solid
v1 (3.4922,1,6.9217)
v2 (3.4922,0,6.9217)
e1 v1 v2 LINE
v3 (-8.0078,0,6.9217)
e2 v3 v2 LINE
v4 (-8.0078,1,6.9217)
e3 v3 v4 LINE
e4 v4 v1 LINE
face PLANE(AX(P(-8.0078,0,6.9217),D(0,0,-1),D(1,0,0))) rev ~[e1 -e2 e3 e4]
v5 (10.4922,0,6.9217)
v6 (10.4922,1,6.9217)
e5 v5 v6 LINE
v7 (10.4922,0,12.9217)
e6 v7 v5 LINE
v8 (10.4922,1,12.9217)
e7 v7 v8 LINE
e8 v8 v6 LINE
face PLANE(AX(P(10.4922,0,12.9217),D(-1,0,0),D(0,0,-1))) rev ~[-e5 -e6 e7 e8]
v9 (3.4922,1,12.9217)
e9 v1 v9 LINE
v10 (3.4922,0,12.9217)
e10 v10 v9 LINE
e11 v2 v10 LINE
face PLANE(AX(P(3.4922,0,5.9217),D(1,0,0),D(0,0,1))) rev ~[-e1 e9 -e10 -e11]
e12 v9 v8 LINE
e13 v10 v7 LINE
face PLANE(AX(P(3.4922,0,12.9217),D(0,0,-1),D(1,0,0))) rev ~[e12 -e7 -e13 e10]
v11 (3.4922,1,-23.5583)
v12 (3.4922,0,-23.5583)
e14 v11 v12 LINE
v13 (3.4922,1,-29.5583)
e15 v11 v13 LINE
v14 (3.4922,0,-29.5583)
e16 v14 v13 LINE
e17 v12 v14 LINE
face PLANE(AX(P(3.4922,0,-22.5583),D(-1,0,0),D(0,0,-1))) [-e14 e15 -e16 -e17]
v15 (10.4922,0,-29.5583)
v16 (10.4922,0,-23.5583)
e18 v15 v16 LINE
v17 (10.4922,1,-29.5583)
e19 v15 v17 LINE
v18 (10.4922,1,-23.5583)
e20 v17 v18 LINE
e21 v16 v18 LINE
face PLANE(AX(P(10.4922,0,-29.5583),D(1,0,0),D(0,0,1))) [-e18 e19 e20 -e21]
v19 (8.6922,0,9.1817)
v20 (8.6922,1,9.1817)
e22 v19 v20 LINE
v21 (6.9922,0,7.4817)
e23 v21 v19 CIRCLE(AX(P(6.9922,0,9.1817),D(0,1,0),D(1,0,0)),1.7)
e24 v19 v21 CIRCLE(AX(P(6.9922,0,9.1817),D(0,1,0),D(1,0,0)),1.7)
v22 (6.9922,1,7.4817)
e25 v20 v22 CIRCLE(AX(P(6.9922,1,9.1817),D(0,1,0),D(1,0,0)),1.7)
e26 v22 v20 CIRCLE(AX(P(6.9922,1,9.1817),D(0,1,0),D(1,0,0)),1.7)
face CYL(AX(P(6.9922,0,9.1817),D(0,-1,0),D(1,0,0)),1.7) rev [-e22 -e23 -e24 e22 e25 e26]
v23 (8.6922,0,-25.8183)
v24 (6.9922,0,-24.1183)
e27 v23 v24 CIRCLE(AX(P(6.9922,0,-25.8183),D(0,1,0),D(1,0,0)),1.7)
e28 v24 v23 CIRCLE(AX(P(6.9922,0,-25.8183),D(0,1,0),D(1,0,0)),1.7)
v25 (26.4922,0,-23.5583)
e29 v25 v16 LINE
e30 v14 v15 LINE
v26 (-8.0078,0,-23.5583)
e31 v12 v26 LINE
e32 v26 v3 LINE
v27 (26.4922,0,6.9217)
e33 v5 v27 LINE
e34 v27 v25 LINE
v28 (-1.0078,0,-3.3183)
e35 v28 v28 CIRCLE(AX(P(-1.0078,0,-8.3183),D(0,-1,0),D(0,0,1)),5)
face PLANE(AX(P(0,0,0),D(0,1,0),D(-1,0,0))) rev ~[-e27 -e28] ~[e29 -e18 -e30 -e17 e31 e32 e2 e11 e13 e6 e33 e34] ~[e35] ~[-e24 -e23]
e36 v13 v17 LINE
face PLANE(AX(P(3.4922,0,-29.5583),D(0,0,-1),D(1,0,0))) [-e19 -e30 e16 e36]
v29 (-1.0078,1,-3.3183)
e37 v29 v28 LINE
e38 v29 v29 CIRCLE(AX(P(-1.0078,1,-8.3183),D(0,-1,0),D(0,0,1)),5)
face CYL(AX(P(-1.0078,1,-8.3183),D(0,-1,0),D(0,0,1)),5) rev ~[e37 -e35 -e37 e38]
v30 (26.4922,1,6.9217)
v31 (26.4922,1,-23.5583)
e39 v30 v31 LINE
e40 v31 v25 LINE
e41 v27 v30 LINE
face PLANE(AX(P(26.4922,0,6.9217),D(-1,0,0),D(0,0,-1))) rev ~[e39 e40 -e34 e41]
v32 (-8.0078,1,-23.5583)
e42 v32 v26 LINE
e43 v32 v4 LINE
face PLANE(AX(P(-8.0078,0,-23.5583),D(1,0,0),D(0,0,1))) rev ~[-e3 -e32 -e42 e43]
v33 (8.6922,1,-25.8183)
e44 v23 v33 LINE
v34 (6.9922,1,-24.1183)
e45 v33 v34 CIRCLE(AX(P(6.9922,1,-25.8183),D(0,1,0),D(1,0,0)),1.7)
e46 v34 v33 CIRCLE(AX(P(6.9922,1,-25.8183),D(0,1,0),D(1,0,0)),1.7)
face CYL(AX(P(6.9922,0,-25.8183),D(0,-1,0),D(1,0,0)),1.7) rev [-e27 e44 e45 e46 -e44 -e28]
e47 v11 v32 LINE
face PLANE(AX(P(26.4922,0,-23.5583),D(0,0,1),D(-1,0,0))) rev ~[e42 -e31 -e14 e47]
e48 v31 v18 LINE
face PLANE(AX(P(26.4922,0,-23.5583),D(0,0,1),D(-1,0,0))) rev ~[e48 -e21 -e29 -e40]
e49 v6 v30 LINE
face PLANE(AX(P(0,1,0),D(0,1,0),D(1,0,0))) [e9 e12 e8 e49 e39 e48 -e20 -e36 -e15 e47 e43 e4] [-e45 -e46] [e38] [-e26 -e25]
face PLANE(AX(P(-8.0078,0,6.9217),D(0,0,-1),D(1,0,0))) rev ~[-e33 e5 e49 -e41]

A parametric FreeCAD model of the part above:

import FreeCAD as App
import Part
import Sketcher

V = App.Vector
Q = App.Units.Quantity

doc = App.newDocument("Part")
body = doc.addObject("PartDesign::Body", "Body")

# Sketch on XZ plane
sketch1 = doc.addObject("Sketcher::SketchObject", "Sketch")
body.addObject(sketch1)
sketch1.AttachmentSupport = (doc.XZ_Plane, [""])
sketch1.MapMode = "FlatFace"
sketch1.addGeometry(Part.LineSegment(V(-8.0078, -23.5583, 0), V(-8.0078, 6.9217, 0)), False)
sketch1.addGeometry(Part.LineSegment(V(-8.0078, 6.9217, 0), V(26.4922, 6.9217, 0)), False)
sketch1.addGeometry(Part.LineSegment(V(26.4922, 6.9217, 0), V(26.4922, -23.5583, 0)), False)
sketch1.addGeometry(Part.LineSegment(V(26.4922, -23.5583, 0), V(-8.0078, -23.5583, 0)), False)
sketch1.addConstraint(Sketcher.Constraint("Coincident", 0, 2, 1, 1))
sketch1.addConstraint(Sketcher.Constraint("Coincident", 1, 2, 2, 1))
sketch1.addConstraint(Sketcher.Constraint("Coincident", 2, 2, 3, 1))
sketch1.addConstraint(Sketcher.Constraint("Coincident", 3, 2, 0, 1))
sketch1.addConstraint(Sketcher.Constraint("Vertical", 0))
sketch1.addConstraint(Sketcher.Constraint("Horizontal", 1))
sketch1.addConstraint(Sketcher.Constraint("Vertical", 2))
sketch1.addConstraint(Sketcher.Constraint("Horizontal", 3))
sketch1.addConstraint(Sketcher.Constraint("DistanceX", 1, 1, 1, 2, Q("34.5 mm")))
sketch1.addConstraint(Sketcher.Constraint("DistanceY", 0, 1, 0, 2, Q("30.48 mm")))
sketch1.addConstraint(Sketcher.Constraint("DistanceX", 0, 2, -1, 1, Q("8.0078 mm")))
sketch1.addConstraint(Sketcher.Constraint("DistanceY", -1, 1, 0, 2, Q("6.9217 mm")))
pad1 = doc.addObject("PartDesign::Pad", "Pad")
body.addObject(pad1)
pad1.Profile = sketch1
pad1.Length = 1
pad1.Reversed = True

# Sketch on XZ plane
sketch2 = doc.addObject("Sketcher::SketchObject", "Sketch001")
body.addObject(sketch2)
sketch2.AttachmentSupport = (doc.XZ_Plane, [""])
sketch2.MapMode = "FlatFace"
sketch2.AttachmentOffset = App.Placement(V(0, 0, -1), App.Rotation())
sketch2.addGeometry(Part.LineSegment(V(26.4922, -23.5583, 0), V(-8.0078, -23.5583, 0)), False)
sketch2.addGeometry(Part.LineSegment(V(-8.0078, -23.5583, 0), V(-8.0078, 6.9217, 0)), False)
sketch2.addGeometry(Part.LineSegment(V(-8.0078, 6.9217, 0), V(26.4922, 6.9217, 0)), False)
sketch2.addGeometry(Part.LineSegment(V(26.4922, 6.9217, 0), V(26.4922, -23.5583, 0)), False)
sketch2.addGeometry(Part.LineSegment(V(-7.0078, -22.5583, 0), V(25.4922, -22.5583, 0)), False)
sketch2.addGeometry(Part.LineSegment(V(25.4922, -22.5583, 0), V(25.4922, 5.9217, 0)), False)
sketch2.addGeometry(Part.LineSegment(V(25.4922, 5.9217, 0), V(-7.0078, 5.9217, 0)), False)
sketch2.addGeometry(Part.LineSegment(V(-7.0078, 5.9217, 0), V(-7.0078, -22.5583, 0)), False)
sketch2.addConstraint(Sketcher.Constraint("Coincident", 0, 2, 1, 1))
sketch2.addConstraint(Sketcher.Constraint("Coincident", 1, 2, 2, 1))
sketch2.addConstraint(Sketcher.Constraint("Coincident", 2, 2, 3, 1))
sketch2.addConstraint(Sketcher.Constraint("Coincident", 3, 2, 0, 1))
sketch2.addConstraint(Sketcher.Constraint("Coincident", 4, 2, 5, 1))
sketch2.addConstraint(Sketcher.Constraint("Coincident", 5, 2, 6, 1))
sketch2.addConstraint(Sketcher.Constraint("Coincident", 6, 2, 7, 1))
sketch2.addConstraint(Sketcher.Constraint("Coincident", 7, 2, 4, 1))
sketch2.addConstraint(Sketcher.Constraint("Horizontal", 0))
sketch2.addConstraint(Sketcher.Constraint("Vertical", 1))
sketch2.addConstraint(Sketcher.Constraint("Horizontal", 2))
sketch2.addConstraint(Sketcher.Constraint("Vertical", 3))
sketch2.addConstraint(Sketcher.Constraint("Horizontal", 4))
sketch2.addConstraint(Sketcher.Constraint("Vertical", 5))
sketch2.addConstraint(Sketcher.Constraint("Horizontal", 6))
sketch2.addConstraint(Sketcher.Constraint("Vertical", 7))
sketch2.addConstraint(Sketcher.Constraint("DistanceX", 4, 2, 3, 2, Q("1 mm")))
sketch2.addConstraint(Sketcher.Constraint("DistanceY", 3, 2, 4, 2, Q("1 mm")))
sketch2.addConstraint(Sketcher.Constraint("DistanceY", 5, 2, 2, 2, Q("1 mm")))
sketch2.addConstraint(Sketcher.Constraint("DistanceX", 1, 2, 6, 2, Q("1 mm")))
sketch2.addConstraint(Sketcher.Constraint("DistanceX", 0, 2, 0, 1, Q("34.5 mm")))
sketch2.addConstraint(Sketcher.Constraint("DistanceY", 1, 1, 1, 2, Q("30.48 mm")))
sketch2.addConstraint(Sketcher.Constraint("DistanceX", 0, 2, -1, 1, Q("8.0078 mm")))
sketch2.addConstraint(Sketcher.Constraint("DistanceY", 0, 2, -1, 1, Q("23.5583 mm")))
pad2 = doc.addObject("PartDesign::Pad", "Pad001")
body.addObject(pad2)
pad2.Profile = sketch2
pad2.Length = 2
pad2.Reversed = True

# Sketch on XZ plane
sketch3 = doc.addObject("Sketcher::SketchObject", "Sketch002")
body.addObject(sketch3)
sketch3.AttachmentSupport = (doc.XZ_Plane, [""])
sketch3.MapMode = "FlatFace"
sketch3.addGeometry(Part.LineSegment(V(6.9922, 5.9217, 0), V(3.4922, 5.9217, 0)), False)
sketch3.addGeometry(Part.LineSegment(V(3.4922, 5.9217, 0), V(3.4922, 12.9217, 0)), False)
sketch3.addGeometry(Part.LineSegment(V(3.4922, 12.9217, 0), V(10.4922, 12.9217, 0)), False)
sketch3.addGeometry(Part.LineSegment(V(10.4922, 12.9217, 0), V(10.4922, 5.9217, 0)), False)
sketch3.addGeometry(Part.LineSegment(V(10.4922, 5.9217, 0), V(6.9922, 5.9217, 0)), False)
sketch3.addGeometry(Part.Circle(V(6.9922, 9.1817, 0), V(0, 0, 1), 1.7), False)
sketch3.addGeometry(Part.LineSegment(V(3.4922, -29.5583, 0), V(3.4922, -22.5583, 0)), False)
sketch3.addGeometry(Part.LineSegment(V(3.4922, -22.5583, 0), V(6.9922, -22.5583, 0)), False)
sketch3.addGeometry(Part.LineSegment(V(6.9922, -22.5583, 0), V(10.4922, -22.5583, 0)), False)
sketch3.addGeometry(Part.LineSegment(V(10.4922, -22.5583, 0), V(10.4922, -29.5583, 0)), False)
sketch3.addGeometry(Part.LineSegment(V(10.4922, -29.5583, 0), V(3.4922, -29.5583, 0)), False)
sketch3.addGeometry(Part.Circle(V(6.9922, -25.8183, 0), V(0, 0, 1), 1.7), False)
sketch3.addConstraint(Sketcher.Constraint("Coincident", 0, 2, 1, 1))
sketch3.addConstraint(Sketcher.Constraint("Coincident", 1, 2, 2, 1))
sketch3.addConstraint(Sketcher.Constraint("Coincident", 2, 2, 3, 1))
sketch3.addConstraint(Sketcher.Constraint("Coincident", 3, 2, 4, 1))
sketch3.addConstraint(Sketcher.Constraint("Coincident", 4, 2, 0, 1))
sketch3.addConstraint(Sketcher.Constraint("Coincident", 6, 2, 7, 1))
sketch3.addConstraint(Sketcher.Constraint("Coincident", 7, 2, 8, 1))
sketch3.addConstraint(Sketcher.Constraint("Coincident", 8, 2, 9, 1))
sketch3.addConstraint(Sketcher.Constraint("Coincident", 9, 2, 10, 1))
sketch3.addConstraint(Sketcher.Constraint("Coincident", 10, 2, 6, 1))
sketch3.addConstraint(Sketcher.Constraint("Horizontal", 0))
sketch3.addConstraint(Sketcher.Constraint("Vertical", 1))
sketch3.addConstraint(Sketcher.Constraint("Horizontal", 2))
sketch3.addConstraint(Sketcher.Constraint("Vertical", 3))
sketch3.addConstraint(Sketcher.Constraint("Horizontal", 4))
sketch3.addConstraint(Sketcher.Constraint("Vertical", 6))
sketch3.addConstraint(Sketcher.Constraint("Horizontal", 7))
sketch3.addConstraint(Sketcher.Constraint("Horizontal", 8))
sketch3.addConstraint(Sketcher.Constraint("Vertical", 9))
sketch3.addConstraint(Sketcher.Constraint("Horizontal", 10))
sketch3.addConstraint(Sketcher.Constraint("Equal", 5, 11))
sketch3.addConstraint(Sketcher.Constraint("Vertical", 5, 3, 11, 3))
sketch3.addConstraint(Sketcher.Constraint("Vertical", 11, 3, 4, 2))
sketch3.addConstraint(Sketcher.Constraint("Vertical", 1, 2, 6, 2))
sketch3.addConstraint(Sketcher.Constraint("Vertical", 4, 2, 7, 2))
sketch3.addConstraint(Sketcher.Constraint("Vertical", 3, 2, 8, 2))
sketch3.addConstraint(Sketcher.Constraint("Equal", 0, 4))
sketch3.addConstraint(Sketcher.Constraint("Equal", 10, 1))
sketch3.addConstraint(Sketcher.Constraint("Equal", 3, 6))
sketch3.addConstraint(Sketcher.Constraint("Diameter", 5, Q("3.4 mm")))
sketch3.addConstraint(Sketcher.Constraint("DistanceX", 2, 1, 2, 2, Q("7 mm")))
sketch3.addConstraint(Sketcher.Constraint("DistanceY", 11, 3, 5, 3, Q("35 mm")))
sketch3.addConstraint(Sketcher.Constraint("DistanceY", 0, 2, 5, 3, Q("3.26 mm")))
sketch3.addConstraint(Sketcher.Constraint("DistanceY", 11, 3, 6, 2, Q("3.26 mm")))
sketch3.addConstraint(Sketcher.Constraint("DistanceX", -1, 1, 5, 3, Q("6.9922 mm")))
sketch3.addConstraint(Sketcher.Constraint("DistanceY", -1, 1, 5, 3, Q("9.1817 mm")))
pad3 = doc.addObject("PartDesign::Pad", "Pad002")
body.addObject(pad3)
pad3.Profile = sketch3
pad3.Length = 1
pad3.Reversed = True

# Sketch on XZ plane
sketch4 = doc.addObject("Sketcher::SketchObject", "Sketch003")
body.addObject(sketch4)
sketch4.AttachmentSupport = (doc.XZ_Plane, [""])
sketch4.MapMode = "FlatFace"
sketch4.AttachmentOffset = App.Placement(V(0, 0, -1), App.Rotation())
sketch4.addGeometry(Part.Circle(V(-1.0078, -8.3183, 0), V(0, 0, 1), 5), False)
sketch4.addConstraint(Sketcher.Constraint("Diameter", 0, Q("10 mm")))
sketch4.addConstraint(Sketcher.Constraint("DistanceX", 0, 3, -1, 1, Q("1.0078 mm")))
sketch4.addConstraint(Sketcher.Constraint("DistanceY", 0, 3, -1, 1, Q("8.3183 mm")))
doc.recompute()
hole = doc.addObject("PartDesign::Hole", "Hole")
body.addObject(hole)
hole.Profile = sketch4
hole.ThreadType = "None"
hole.Diameter = 10
hole.DepthType = "ThroughAll"
hole.Reversed = True

# Sketch on XZ plane
sketch5 = doc.addObject("Sketcher::SketchObject", "Sketch004")
body.addObject(sketch5)
sketch5.AttachmentSupport = (doc.XZ_Plane, [""])
sketch5.MapMode = "FlatFace"
sketch5.AttachmentOffset = App.Placement(V(0, 0, -3), App.Rotation())
sketch5.addGeometry(Part.LineSegment(V(26.4922, 6.9217, 0), V(26.4922, -23.5583, 0)), False)
sketch5.addGeometry(Part.LineSegment(V(26.4922, -23.5583, 0), V(-8.0078, -23.5583, 0)), False)
sketch5.addGeometry(Part.LineSegment(V(-8.0078, -23.5583, 0), V(-8.0078, 6.9217, 0)), False)
sketch5.addGeometry(Part.LineSegment(V(-8.0078, 6.9217, 0), V(26.4922, 6.9217, 0)), False)
sketch5.addGeometry(Part.LineSegment(V(-7.0078, 5.9217, 0), V(-7.0078, -22.5583, 0)), False)
sketch5.addGeometry(Part.LineSegment(V(-7.0078, -22.5583, 0), V(25.4922, -22.5583, 0)), False)
sketch5.addGeometry(Part.LineSegment(V(25.4922, -22.5583, 0), V(25.4922, 5.9217, 0)), False)
sketch5.addGeometry(Part.LineSegment(V(25.4922, 5.9217, 0), V(-7.0078, 5.9217, 0)), False)
sketch5.addConstraint(Sketcher.Constraint("Coincident", 0, 2, 1, 1))
sketch5.addConstraint(Sketcher.Constraint("Coincident", 1, 2, 2, 1))
sketch5.addConstraint(Sketcher.Constraint("Coincident", 2, 2, 3, 1))
sketch5.addConstraint(Sketcher.Constraint("Coincident", 3, 2, 0, 1))
sketch5.addConstraint(Sketcher.Constraint("Coincident", 4, 2, 5, 1))
sketch5.addConstraint(Sketcher.Constraint("Coincident", 5, 2, 6, 1))
sketch5.addConstraint(Sketcher.Constraint("Coincident", 6, 2, 7, 1))
sketch5.addConstraint(Sketcher.Constraint("Coincident", 7, 2, 4, 1))
sketch5.addConstraint(Sketcher.Constraint("Vertical", 0))
sketch5.addConstraint(Sketcher.Constraint("Horizontal", 1))
sketch5.addConstraint(Sketcher.Constraint("Vertical", 2))
sketch5.addConstraint(Sketcher.Constraint("Horizontal", 3))
sketch5.addConstraint(Sketcher.Constraint("Vertical", 4))
sketch5.addConstraint(Sketcher.Constraint("Horizontal", 5))
sketch5.addConstraint(Sketcher.Constraint("Vertical", 6))
sketch5.addConstraint(Sketcher.Constraint("Horizontal", 7))
sketch5.addConstraint(Sketcher.Constraint("DistanceX", 1, 2, 1, 1, Q("34.5 mm")))
sketch5.addConstraint(Sketcher.Constraint("DistanceX", 5, 1, 5, 2, Q("32.5 mm")))
sketch5.addConstraint(Sketcher.Constraint("DistanceX", 1, 2, 4, 2, Q("1 mm")))
sketch5.addConstraint(Sketcher.Constraint("DistanceY", 1, 2, 4, 2, Q("1 mm")))
sketch5.addConstraint(Sketcher.Constraint("DistanceY", 6, 2, 3, 2, Q("1 mm")))
sketch5.addConstraint(Sketcher.Constraint("DistanceY", 0, 2, 0, 1, Q("30.48 mm")))
sketch5.addConstraint(Sketcher.Constraint("DistanceX", -1, 1, 0, 2, Q("26.4922 mm")))
sketch5.addConstraint(Sketcher.Constraint("DistanceY", 0, 2, -1, 1, Q("23.5583 mm")))
pocket1 = doc.addObject("PartDesign::Pocket", "Pocket")
body.addObject(pocket1)
pocket1.Profile = sketch5
pocket1.Length = 2
pocket1.Reversed = True

doc.recompute()
